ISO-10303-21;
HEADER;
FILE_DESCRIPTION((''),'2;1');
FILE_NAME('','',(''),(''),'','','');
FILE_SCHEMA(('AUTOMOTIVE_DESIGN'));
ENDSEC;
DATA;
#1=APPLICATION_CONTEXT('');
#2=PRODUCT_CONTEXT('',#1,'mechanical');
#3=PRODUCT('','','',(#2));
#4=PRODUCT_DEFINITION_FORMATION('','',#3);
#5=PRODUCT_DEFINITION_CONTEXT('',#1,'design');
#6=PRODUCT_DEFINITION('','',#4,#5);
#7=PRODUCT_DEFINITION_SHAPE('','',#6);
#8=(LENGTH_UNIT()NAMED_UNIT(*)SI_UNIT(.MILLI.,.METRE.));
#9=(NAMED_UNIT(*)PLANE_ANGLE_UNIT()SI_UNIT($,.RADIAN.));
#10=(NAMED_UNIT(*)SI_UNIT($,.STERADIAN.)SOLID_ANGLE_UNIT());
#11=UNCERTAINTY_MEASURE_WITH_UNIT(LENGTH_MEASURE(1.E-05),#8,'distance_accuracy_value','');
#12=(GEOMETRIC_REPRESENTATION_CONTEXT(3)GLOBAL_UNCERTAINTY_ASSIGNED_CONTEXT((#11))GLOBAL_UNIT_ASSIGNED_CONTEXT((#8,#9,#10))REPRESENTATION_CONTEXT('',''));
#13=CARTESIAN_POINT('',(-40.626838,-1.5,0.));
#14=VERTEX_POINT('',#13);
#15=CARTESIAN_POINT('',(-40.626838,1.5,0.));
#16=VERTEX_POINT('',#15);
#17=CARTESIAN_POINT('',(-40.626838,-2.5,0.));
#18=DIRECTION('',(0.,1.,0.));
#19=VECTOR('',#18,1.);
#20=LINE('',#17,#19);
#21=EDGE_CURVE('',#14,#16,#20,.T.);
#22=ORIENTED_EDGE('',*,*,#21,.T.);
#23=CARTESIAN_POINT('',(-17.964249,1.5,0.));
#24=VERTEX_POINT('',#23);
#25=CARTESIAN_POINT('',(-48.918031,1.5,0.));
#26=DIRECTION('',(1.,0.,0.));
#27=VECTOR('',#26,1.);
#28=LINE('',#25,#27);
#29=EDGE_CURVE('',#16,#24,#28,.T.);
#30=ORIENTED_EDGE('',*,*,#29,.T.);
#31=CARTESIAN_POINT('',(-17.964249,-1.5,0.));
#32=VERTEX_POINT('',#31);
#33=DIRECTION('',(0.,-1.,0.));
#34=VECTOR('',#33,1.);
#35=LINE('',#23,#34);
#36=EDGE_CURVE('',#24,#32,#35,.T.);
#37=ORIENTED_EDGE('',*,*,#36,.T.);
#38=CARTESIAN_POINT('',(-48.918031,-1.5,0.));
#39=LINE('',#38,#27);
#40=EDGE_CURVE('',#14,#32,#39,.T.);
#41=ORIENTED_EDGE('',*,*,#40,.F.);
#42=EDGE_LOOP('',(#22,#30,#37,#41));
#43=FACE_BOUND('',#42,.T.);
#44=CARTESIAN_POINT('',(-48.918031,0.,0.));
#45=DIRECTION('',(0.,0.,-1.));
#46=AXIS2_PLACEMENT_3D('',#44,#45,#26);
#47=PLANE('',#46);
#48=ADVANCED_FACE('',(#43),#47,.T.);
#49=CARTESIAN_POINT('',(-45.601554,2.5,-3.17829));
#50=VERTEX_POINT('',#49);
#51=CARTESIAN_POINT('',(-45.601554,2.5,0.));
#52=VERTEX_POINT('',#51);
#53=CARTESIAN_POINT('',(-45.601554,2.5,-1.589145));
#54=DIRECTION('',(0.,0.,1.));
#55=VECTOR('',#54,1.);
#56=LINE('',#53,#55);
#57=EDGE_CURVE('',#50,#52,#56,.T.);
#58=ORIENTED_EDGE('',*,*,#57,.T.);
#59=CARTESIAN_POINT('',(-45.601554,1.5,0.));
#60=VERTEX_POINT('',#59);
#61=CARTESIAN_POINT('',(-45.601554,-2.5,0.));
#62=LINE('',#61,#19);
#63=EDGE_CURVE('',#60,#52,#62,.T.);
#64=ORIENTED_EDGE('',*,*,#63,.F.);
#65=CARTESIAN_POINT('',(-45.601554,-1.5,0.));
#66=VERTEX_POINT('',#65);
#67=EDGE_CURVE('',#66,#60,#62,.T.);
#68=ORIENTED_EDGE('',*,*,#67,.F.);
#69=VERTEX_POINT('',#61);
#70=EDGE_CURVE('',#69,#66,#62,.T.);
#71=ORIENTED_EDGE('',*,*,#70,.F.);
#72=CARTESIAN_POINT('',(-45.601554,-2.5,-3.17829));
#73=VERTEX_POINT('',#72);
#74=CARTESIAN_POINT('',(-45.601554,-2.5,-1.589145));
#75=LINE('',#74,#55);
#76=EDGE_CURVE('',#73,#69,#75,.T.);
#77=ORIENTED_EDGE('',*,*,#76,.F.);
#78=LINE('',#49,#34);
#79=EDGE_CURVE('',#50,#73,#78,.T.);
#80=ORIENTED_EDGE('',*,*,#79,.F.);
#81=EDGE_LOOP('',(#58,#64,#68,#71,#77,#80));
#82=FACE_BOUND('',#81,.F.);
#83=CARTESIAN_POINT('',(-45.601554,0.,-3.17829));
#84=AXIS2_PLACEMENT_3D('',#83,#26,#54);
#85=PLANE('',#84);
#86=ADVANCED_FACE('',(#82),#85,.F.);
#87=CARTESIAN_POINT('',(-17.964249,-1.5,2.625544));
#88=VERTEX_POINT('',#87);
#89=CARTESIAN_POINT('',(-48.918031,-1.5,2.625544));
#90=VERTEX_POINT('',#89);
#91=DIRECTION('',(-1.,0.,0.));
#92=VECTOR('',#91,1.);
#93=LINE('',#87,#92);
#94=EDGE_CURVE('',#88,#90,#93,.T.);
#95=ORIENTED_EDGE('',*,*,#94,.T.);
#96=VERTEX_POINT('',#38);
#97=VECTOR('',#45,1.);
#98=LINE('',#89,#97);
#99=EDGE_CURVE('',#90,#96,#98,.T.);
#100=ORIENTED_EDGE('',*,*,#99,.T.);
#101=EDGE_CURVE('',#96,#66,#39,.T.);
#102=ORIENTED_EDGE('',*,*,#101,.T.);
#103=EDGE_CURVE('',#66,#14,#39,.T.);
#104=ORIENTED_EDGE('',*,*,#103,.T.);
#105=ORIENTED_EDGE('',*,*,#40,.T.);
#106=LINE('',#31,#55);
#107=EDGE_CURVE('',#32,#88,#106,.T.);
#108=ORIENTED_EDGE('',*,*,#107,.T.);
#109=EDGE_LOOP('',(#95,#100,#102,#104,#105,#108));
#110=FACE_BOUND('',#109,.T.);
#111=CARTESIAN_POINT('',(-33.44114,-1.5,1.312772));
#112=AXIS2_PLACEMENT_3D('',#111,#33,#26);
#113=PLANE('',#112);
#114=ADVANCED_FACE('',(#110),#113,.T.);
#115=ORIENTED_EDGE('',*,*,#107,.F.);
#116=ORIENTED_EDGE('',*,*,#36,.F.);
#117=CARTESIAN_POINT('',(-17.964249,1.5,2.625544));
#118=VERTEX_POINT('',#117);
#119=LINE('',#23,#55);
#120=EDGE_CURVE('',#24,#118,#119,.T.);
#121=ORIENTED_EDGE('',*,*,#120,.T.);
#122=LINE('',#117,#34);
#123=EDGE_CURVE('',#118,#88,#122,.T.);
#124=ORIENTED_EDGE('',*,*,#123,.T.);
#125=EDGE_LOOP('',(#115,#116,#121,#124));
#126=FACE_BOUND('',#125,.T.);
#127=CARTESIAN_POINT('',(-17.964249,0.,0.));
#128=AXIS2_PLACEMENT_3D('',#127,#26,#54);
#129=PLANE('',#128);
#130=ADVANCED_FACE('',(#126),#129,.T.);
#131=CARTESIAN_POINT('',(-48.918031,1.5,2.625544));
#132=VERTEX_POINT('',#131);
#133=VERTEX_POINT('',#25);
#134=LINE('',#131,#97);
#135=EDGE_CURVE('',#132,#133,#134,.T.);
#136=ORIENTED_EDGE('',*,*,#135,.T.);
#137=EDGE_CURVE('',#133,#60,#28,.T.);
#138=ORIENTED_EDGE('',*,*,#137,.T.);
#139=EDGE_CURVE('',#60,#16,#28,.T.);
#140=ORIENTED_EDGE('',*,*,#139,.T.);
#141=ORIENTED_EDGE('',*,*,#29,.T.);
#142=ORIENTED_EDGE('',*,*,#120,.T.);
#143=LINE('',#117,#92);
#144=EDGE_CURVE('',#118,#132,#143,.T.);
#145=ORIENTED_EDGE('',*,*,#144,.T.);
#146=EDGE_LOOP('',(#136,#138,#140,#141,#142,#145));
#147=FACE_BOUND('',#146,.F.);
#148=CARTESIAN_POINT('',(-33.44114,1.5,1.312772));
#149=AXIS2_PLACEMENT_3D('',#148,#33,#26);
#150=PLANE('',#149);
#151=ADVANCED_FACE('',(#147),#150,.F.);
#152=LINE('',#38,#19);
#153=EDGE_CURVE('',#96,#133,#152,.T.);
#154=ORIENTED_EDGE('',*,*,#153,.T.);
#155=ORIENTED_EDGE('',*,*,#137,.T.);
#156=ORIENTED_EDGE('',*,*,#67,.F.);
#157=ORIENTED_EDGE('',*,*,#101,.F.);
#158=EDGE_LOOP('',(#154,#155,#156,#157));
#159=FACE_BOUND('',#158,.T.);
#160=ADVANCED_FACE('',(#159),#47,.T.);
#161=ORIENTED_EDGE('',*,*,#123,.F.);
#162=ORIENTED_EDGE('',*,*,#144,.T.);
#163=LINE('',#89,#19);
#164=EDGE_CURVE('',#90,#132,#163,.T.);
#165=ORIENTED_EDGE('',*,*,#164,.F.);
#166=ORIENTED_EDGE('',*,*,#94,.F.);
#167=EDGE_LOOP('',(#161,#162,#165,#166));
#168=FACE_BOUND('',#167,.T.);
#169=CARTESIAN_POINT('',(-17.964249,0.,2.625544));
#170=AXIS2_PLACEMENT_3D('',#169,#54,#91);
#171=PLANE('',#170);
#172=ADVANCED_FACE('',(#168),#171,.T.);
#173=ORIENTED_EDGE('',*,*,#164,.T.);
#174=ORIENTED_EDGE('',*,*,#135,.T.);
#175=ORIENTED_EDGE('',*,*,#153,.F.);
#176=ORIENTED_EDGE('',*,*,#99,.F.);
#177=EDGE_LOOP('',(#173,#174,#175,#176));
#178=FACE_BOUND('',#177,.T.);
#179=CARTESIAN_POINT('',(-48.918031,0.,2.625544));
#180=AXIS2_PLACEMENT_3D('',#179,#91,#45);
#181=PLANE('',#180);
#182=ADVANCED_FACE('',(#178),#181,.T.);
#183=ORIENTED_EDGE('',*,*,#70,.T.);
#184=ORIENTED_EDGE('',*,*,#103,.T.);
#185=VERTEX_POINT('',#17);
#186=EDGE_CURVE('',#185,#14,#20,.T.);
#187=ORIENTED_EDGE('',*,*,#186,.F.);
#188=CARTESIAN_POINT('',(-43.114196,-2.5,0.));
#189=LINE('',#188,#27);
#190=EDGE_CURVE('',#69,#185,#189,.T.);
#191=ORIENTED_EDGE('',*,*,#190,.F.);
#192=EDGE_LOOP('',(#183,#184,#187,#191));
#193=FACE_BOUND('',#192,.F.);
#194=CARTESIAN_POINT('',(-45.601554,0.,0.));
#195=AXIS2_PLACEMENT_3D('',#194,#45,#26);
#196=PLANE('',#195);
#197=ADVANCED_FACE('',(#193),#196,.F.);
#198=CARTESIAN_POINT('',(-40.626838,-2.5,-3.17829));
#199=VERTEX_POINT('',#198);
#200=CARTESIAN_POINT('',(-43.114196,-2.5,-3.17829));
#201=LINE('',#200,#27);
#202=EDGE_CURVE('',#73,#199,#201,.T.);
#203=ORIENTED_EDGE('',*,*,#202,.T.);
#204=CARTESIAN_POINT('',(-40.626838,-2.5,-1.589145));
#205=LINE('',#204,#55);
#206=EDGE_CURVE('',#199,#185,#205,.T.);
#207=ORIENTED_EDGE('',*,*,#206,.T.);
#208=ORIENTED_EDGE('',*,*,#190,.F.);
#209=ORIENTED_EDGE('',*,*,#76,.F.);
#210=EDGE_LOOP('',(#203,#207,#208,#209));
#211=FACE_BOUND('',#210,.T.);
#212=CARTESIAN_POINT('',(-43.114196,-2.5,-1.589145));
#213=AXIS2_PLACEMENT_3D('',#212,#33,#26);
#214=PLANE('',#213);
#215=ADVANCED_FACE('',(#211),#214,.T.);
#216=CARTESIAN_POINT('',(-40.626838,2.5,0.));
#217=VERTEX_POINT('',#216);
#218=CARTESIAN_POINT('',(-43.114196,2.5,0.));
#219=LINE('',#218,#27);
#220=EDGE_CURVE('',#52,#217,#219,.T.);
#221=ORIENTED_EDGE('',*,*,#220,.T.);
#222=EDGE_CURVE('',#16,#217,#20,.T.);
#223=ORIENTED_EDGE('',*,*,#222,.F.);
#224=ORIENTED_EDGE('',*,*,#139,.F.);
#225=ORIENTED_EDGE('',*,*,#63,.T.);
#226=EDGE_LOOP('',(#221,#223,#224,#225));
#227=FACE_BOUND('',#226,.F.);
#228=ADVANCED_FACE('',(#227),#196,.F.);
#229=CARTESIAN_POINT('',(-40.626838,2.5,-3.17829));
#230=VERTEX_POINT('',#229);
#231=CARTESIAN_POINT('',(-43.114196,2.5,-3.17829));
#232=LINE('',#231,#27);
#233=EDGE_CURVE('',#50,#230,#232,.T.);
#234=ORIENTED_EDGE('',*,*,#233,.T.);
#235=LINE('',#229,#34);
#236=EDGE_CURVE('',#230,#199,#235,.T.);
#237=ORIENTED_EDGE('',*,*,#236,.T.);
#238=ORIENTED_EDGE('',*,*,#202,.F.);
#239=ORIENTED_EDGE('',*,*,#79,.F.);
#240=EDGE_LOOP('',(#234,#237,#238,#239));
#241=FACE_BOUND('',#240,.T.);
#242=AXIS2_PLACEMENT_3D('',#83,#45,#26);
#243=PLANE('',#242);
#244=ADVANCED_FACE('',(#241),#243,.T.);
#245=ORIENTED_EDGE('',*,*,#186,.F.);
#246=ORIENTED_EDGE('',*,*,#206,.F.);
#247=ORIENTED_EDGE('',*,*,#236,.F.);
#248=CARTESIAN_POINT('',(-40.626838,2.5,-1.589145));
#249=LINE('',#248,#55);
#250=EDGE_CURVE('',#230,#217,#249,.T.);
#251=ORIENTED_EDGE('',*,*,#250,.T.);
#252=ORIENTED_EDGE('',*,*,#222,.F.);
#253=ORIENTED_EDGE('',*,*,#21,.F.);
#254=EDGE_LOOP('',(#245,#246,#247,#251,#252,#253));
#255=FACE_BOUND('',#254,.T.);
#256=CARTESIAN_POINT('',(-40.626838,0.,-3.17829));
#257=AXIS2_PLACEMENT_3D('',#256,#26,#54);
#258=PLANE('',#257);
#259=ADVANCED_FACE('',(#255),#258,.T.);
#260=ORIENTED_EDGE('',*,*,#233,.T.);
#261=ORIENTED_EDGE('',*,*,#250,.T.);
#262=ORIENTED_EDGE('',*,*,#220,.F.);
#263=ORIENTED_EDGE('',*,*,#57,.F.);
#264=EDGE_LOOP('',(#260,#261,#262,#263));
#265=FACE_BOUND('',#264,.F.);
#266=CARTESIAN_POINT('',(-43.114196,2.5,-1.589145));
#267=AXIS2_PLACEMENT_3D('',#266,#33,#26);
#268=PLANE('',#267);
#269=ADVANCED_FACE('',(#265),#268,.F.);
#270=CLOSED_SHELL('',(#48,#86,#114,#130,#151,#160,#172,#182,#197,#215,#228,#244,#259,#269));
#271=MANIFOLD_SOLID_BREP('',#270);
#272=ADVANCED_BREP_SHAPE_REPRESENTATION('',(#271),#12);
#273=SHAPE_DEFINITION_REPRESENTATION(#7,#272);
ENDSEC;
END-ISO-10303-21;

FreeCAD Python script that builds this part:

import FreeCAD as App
import Part
import Sketcher
from FreeCAD import Vector
Q = App.Units.Quantity

doc = App.newDocument("Part")
body = doc.addObject("PartDesign::Body", "Body")

# Sketch on XZ plane
sketch1 = body.newObject("Sketcher::SketchObject", "Sketch")
sketch1.AttachmentSupport = (doc.getObject("XZ_Plane"), [""])
sketch1.MapMode = "FlatFace"
sketch1.addGeometry([
    Part.LineSegment(Vector(-48.9, 0, 0), Vector(-18, 0, 0)),
    Part.LineSegment(Vector(-18, 0, 0), Vector(-18, 2.6, 0)),
    Part.LineSegment(Vector(-18, 2.6, 0), Vector(-48.9, 2.6, 0)),
    Part.LineSegment(Vector(-48.9, 2.6, 0), Vector(-48.9, 0, 0)),
], False)
sketch1.addConstraint([
    Sketcher.Constraint("Coincident", 0, 2, 1, 1),
    Sketcher.Constraint("Coincident", 1, 2, 2, 1),
    Sketcher.Constraint("Coincident", 2, 2, 3, 1),
    Sketcher.Constraint("Coincident", 3, 2, 0, 1),
    Sketcher.Constraint("Horizontal", 0),
    Sketcher.Constraint("Vertical", 1),
    Sketcher.Constraint("Horizontal", 2),
    Sketcher.Constraint("Vertical", 3),
    Sketcher.Constraint("PointOnObject", 0, 2, -1),
    Sketcher.Constraint("DistanceX", 0, 1, 0, 2, Q("30.953782 mm")),
    Sketcher.Constraint("DistanceY", 1, 1, 1, 2, Q("2.625544 mm")),
    Sketcher.Constraint("DistanceX", 0, 2, -1, 1, Q("17.964249 mm")),
])
pad1 = body.newObject("PartDesign::Pad", "Pad")
pad1.Profile = sketch1
pad1.Length = 3
pad1.Midplane = True

# Sketch on XZ plane
sketch2 = body.newObject("Sketcher::SketchObject", "Sketch001")
sketch2.AttachmentSupport = (doc.getObject("XZ_Plane"), [""])
sketch2.MapMode = "FlatFace"
sketch2.addGeometry([
    Part.LineSegment(Vector(-45.6, 0, 0), Vector(-45.6, -3.2, 0)),
    Part.LineSegment(Vector(-45.6, -3.2, 0), Vector(-40.6, -3.2, 0)),
    Part.LineSegment(Vector(-40.6, -3.2, 0), Vector(-40.6, 0, 0)),
    Part.LineSegment(Vector(-40.6, 0, 0), Vector(-45.6, 0, 0)),
], False)
sketch2.addConstraint([
    Sketcher.Constraint("Coincident", 0, 2, 1, 1),
    Sketcher.Constraint("Coincident", 1, 2, 2, 1),
    Sketcher.Constraint("Coincident", 2, 2, 3, 1),
    Sketcher.Constraint("Coincident", 3, 2, 0, 1),
    Sketcher.Constraint("Vertical", 0),
    Sketcher.Constraint("Horizontal", 1),
    Sketcher.Constraint("Vertical", 2),
    Sketcher.Constraint("Horizontal", 3),
    Sketcher.Constraint("PointOnObject", 2, 2, -1),
    Sketcher.Constraint("DistanceY", 0, 2, 0, 1, Q("3.17829 mm")),
    Sketcher.Constraint("DistanceX", 1, 1, 1, 2, Q("4.974715 mm")),
    Sketcher.Constraint("DistanceX", 1, 2, -1, 1, Q("40.626838 mm")),
])
pad2 = body.newObject("PartDesign::Pad", "Pad001")
pad2.Profile = sketch2
pad2.Length = 5
pad2.Midplane = True

doc.recompute()
